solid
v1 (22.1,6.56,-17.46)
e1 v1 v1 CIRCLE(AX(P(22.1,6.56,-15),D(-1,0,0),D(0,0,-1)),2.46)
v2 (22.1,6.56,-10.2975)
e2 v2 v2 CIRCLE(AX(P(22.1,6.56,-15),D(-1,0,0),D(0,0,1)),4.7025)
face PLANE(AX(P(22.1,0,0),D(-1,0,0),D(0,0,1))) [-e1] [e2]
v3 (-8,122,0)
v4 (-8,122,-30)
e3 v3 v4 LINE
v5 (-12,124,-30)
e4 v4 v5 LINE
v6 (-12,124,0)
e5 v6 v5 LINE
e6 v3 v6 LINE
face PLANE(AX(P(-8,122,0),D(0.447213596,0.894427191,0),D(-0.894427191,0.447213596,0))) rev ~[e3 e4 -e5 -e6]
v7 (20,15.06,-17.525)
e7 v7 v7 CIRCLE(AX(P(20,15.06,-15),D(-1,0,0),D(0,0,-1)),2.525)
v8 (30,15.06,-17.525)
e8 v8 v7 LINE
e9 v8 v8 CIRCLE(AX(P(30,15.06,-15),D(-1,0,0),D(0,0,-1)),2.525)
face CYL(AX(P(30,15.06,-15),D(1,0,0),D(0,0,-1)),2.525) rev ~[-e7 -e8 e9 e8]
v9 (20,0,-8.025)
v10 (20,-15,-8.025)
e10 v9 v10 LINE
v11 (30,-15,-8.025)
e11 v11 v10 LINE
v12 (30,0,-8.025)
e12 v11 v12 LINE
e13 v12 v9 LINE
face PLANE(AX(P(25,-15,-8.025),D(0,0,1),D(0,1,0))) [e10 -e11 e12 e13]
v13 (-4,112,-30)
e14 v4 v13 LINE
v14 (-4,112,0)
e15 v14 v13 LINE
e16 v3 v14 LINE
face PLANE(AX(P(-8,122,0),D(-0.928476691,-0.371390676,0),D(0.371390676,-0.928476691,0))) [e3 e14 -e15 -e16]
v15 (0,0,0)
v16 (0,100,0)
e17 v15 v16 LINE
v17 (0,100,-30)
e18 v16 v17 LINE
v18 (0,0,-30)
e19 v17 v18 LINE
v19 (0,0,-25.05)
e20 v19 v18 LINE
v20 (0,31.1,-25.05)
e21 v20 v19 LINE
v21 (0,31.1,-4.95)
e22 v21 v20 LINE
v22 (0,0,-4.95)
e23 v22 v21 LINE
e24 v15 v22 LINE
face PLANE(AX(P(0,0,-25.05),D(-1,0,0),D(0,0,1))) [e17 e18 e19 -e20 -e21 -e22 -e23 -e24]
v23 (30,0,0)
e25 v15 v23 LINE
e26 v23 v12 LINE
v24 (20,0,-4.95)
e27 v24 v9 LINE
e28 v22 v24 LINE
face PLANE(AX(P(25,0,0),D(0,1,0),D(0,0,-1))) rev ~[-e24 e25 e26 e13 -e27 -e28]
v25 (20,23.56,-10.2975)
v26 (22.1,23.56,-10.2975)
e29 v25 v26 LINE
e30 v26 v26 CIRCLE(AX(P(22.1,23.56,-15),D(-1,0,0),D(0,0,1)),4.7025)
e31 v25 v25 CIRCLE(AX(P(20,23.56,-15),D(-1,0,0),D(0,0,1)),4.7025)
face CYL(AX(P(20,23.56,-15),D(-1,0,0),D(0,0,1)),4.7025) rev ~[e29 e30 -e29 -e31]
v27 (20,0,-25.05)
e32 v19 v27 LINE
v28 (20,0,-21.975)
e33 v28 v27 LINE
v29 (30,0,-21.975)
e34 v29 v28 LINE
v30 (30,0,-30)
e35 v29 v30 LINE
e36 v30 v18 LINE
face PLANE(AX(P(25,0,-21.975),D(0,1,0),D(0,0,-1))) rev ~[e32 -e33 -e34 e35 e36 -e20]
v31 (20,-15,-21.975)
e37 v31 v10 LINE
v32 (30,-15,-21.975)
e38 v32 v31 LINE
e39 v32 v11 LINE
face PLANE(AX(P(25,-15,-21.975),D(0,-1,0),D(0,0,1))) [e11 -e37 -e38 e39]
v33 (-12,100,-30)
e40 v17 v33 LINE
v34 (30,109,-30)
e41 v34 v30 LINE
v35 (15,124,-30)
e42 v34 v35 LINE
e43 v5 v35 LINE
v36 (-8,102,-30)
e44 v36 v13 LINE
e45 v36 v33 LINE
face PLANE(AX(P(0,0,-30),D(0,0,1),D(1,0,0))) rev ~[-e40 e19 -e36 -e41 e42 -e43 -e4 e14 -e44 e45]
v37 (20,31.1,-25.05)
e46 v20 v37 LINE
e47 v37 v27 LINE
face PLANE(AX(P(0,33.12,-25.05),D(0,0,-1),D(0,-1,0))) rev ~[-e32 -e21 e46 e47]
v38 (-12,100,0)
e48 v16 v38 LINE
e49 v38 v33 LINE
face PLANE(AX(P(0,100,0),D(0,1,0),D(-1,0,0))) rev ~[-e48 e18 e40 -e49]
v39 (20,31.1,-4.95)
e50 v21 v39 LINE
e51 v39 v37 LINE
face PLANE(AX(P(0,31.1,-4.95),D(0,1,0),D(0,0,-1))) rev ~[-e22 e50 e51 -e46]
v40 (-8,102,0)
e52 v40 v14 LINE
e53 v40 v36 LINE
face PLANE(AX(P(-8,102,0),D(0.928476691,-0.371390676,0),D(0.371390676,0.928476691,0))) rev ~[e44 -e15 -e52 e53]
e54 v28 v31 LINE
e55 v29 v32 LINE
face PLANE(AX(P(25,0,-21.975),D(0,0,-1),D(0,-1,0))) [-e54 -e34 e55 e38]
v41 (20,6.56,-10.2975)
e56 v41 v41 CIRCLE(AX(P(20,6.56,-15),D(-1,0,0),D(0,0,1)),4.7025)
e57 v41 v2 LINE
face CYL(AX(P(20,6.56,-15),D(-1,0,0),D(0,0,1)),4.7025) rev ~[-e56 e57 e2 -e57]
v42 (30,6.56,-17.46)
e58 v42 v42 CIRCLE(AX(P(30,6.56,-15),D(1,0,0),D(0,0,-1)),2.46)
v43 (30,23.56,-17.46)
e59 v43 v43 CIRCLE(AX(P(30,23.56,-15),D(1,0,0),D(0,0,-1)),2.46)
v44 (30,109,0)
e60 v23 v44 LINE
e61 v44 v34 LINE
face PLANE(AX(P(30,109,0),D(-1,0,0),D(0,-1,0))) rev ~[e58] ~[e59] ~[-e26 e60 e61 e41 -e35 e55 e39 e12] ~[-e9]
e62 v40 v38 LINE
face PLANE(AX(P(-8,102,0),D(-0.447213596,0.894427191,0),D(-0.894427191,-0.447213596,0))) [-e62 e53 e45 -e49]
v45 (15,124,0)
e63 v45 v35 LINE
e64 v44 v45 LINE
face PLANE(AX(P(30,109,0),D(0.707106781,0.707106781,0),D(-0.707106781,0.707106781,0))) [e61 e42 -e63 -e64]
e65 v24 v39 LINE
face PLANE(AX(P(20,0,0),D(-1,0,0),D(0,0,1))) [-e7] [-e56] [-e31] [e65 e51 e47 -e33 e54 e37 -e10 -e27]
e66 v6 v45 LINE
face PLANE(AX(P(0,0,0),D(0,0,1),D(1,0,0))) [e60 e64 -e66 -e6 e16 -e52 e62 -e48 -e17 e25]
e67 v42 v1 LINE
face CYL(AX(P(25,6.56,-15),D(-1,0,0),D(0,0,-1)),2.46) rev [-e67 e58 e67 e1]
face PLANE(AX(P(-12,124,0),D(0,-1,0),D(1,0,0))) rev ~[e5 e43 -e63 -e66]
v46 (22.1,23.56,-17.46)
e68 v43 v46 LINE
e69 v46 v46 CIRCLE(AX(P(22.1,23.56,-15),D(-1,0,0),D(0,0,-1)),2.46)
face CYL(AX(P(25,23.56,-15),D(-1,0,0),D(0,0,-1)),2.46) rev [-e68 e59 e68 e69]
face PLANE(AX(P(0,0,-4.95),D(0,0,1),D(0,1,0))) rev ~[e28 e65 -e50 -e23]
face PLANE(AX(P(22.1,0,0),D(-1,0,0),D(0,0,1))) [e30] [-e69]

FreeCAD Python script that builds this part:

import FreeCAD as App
import Part
import Sketcher

V = App.Vector
Q = App.Units.Quantity


def add_polygon(sketch, points):
    """Adds a closed chain of lines whose ends are joined by coincident constraints."""
    first, n = sketch.GeometryCount, len(points)
    for a, b in zip(points, points[1:] + points[:1]):
        sketch.addGeometry(Part.LineSegment(App.Vector(*a, 0), App.Vector(*b, 0)), False)
    for i in range(n):
        sketch.addConstraint(Sketcher.Constraint("Coincident", first + i, 2, first + (i + 1) % n, 1))

doc = App.newDocument("Part")
body = doc.addObject("PartDesign::Body", "Body")

# Sketch on XY plane
sketch1 = body.newObject("Sketcher::SketchObject", "Sketch")
sketch1.AttachmentSupport = (doc.getObject("XY_Plane"), [""])
sketch1.MapMode = "FlatFace"
add_polygon(sketch1, [(0, 40), (0, 0), (25, 0), (25, 40)])  # lines 0-3
sketch1.addConstraint([
    Sketcher.Constraint("Vertical", 0),
    Sketcher.Constraint("Horizontal", 1),
    Sketcher.Constraint("Vertical", 2),
    Sketcher.Constraint("Horizontal", 3),
    Sketcher.Constraint("Coincident", 0, 2, -1, 1),
    Sketcher.Constraint("DistanceX", 1, 1, 1, 2, Q("25 mm")),
    Sketcher.Constraint("DistanceY", 0, 2, 0, 1, Q("40 mm")),
])
pad1 = body.newObject("PartDesign::Pad", "Pad")
pad1.Profile = sketch1
pad1.Length = 30
pad1.Reversed = True

# Sketch on YZ plane
sketch2 = body.newObject("Sketcher::SketchObject", "Sketch001")
sketch2.AttachmentSupport = (doc.getObject("YZ_Plane"), [""])
sketch2.MapMode = "FlatFace"
sketch2.AttachmentOffset = App.Placement(V(0, 0, 25), App.Rotation())
sketch2.addGeometry(Part.Circle(V(6.6, -15, 0), V(0, 0, 1), 2.5), False)
sketch2.addConstraint([
    Sketcher.Constraint("Diameter", 0, Q("4.92 mm")),
    Sketcher.Constraint("DistanceY", 0, 3, -1, 1, Q("15 mm")),
    Sketcher.Constraint("DistanceX", -1, 1, 0, 3, Q("6.56 mm")),
])
pocket1 = body.newObject("PartDesign::Pocket", "Pocket")
pocket1.Profile = sketch2
pocket1.Length = 30

# Sketch on YZ plane
sketch3 = body.newObject("Sketcher::SketchObject", "Sketch002")
sketch3.AttachmentSupport = (doc.getObject("YZ_Plane"), [""])
sketch3.MapMode = "FlatFace"
add_polygon(sketch3, [(0, -25), (0, -5), (33, -5), (33, -25)])  # lines 0-3
sketch3.addConstraint([
    Sketcher.Constraint("Vertical", 0),
    Sketcher.Constraint("Horizontal", 1),
    Sketcher.Constraint("Vertical", 2),
    Sketcher.Constraint("Horizontal", 3),
    Sketcher.Constraint("PointOnObject", 0, 2, -2),
    Sketcher.Constraint("DistanceY", 0, 1, 0, 2, Q("20.1 mm")),
    Sketcher.Constraint("DistanceX", 1, 1, 1, 2, Q("33.12 mm")),
    Sketcher.Constraint("DistanceY", 0, 2, -1, 1, Q("4.95 mm")),
])
pocket2 = body.newObject("PartDesign::Pocket", "Pocket001")
pocket2.Profile = sketch3
pocket2.Length = 20
pocket2.Reversed = True

# Sketch on XZ plane
sketch4 = body.newObject("Sketcher::SketchObject", "Sketch003")
sketch4.AttachmentSupport = (doc.getObject("XZ_Plane"), [""])
sketch4.MapMode = "FlatFace"
add_polygon(sketch4, [(25, -8), (20, -8), (20, -22), (25, -22)])  # lines 0-3
sketch4.addConstraint([
    Sketcher.Constraint("Horizontal", 0),
    Sketcher.Constraint("Vertical", 1),
    Sketcher.Constraint("Horizontal", 2),
    Sketcher.Constraint("Vertical", 3),
    Sketcher.Constraint("DistanceY", 1, 2, 1, 1, Q("13.95 mm")),
    Sketcher.Constraint("DistanceX", 0, 2, 0, 1, Q("5 mm")),
    Sketcher.Constraint("DistanceX", -1, 1, 0, 2, Q("20 mm")),
    Sketcher.Constraint("DistanceY", 0, 2, -1, 1, Q("8.025 mm")),
])
pad2 = body.newObject("PartDesign::Pad", "Pad001")
pad2.Profile = sketch4
pad2.Length = 15

# Sketch on YZ plane
sketch5 = body.newObject("Sketcher::SketchObject", "Sketch004")
sketch5.AttachmentSupport = (doc.getObject("YZ_Plane"), [""])
sketch5.MapMode = "FlatFace"
sketch5.AttachmentOffset = App.Placement(V(0, 0, 20), App.Rotation())
sketch5.addGeometry([
    Part.Circle(V(6.6, -15, 0), V(0, 0, 1), 4.7),
    Part.Circle(V(6.6, -15, 0), V(0, 0, 1), 2.5),
], False)
sketch5.addConstraint([
    Sketcher.Constraint("Coincident", 1, 3, 0, 3),
    Sketcher.Constraint("Diameter", 0, Q("9.405 mm")),
    Sketcher.Constraint("Diameter", 1, Q("4.92 mm")),
    Sketcher.Constraint("DistanceY", 0, 3, -1, 1, Q("15 mm")),
    Sketcher.Constraint("DistanceX", -1, 1, 0, 3, Q("6.56 mm")),
])
pocket3 = body.newObject("PartDesign::Pocket", "Pocket002")
pocket3.Profile = sketch5
pocket3.Length = 2.1
pocket3.Reversed = True

# Sketch on YZ plane
sketch6 = body.newObject("Sketcher::SketchObject", "Sketch005")
sketch6.AttachmentSupport = (doc.getObject("YZ_Plane"), [""])
sketch6.MapMode = "FlatFace"
sketch6.AttachmentOffset = App.Placement(V(0, 0, 25), App.Rotation())
sketch6.addGeometry(Part.Circle(V(23.6, -15, 0), V(0, 0, 1), 2.5), False)
sketch6.addConstraint([
    Sketcher.Constraint("Diameter", 0, Q("4.92 mm")),
    Sketcher.Constraint("DistanceY", 0, 3, -1, 1, Q("15 mm")),
    Sketcher.Constraint("DistanceX", -1, 1, 0, 3, Q("23.56 mm")),
])
pocket4 = body.newObject("PartDesign::Pocket", "Pocket003")
pocket4.Profile = sketch6
pocket4.Length = 10

# Sketch on YZ plane
sketch7 = body.newObject("Sketcher::SketchObject", "Sketch006")
sketch7.AttachmentSupport = (doc.getObject("YZ_Plane"), [""])
sketch7.MapMode = "FlatFace"
sketch7.AttachmentOffset = App.Placement(V(0, 0, 20), App.Rotation())
sketch7.addGeometry([
    Part.Circle(V(23.6, -15, 0), V(0, 0, 1), 4.7),
    Part.Circle(V(23.6, -15, 0), V(0, 0, 1), 2.5),
], False)
sketch7.addConstraint([
    Sketcher.Constraint("Coincident", 1, 3, 0, 3),
    Sketcher.Constraint("Diameter", 0, Q("9.405 mm")),
    Sketcher.Constraint("Diameter", 1, Q("4.92 mm")),
    Sketcher.Constraint("DistanceY", 0, 3, -1, 1, Q("15 mm")),
    Sketcher.Constraint("DistanceX", -1, 1, 0, 3, Q("23.56 mm")),
])
pocket5 = body.newObject("PartDesign::Pocket", "Pocket004")
pocket5.Profile = sketch7
pocket5.Length = 2.1
pocket5.Reversed = True

# Sketch on YZ plane
sketch8 = body.newObject("Sketcher::SketchObject", "Sketch007")
sketch8.AttachmentSupport = (doc.getObject("YZ_Plane"), [""])
sketch8.MapMode = "FlatFace"
sketch8.AttachmentOffset = App.Placement(V(0, 0, 25), App.Rotation())
add_polygon(sketch8, [(0, -30), (40, -30), (40, 0), (0, 0), (0, -8), (-15, -8), (-15, -22), (0, -22)])  # lines 0-7
sketch8.addGeometry(Part.Circle(V(6.6, -15, 0), V(0, 0, 1), 2.5), False)  # 8
sketch8.addGeometry(Part.Circle(V(23.6, -15, 0), V(0, 0, 1), 2.5), False)  # 9
sketch8.addConstraint([
    Sketcher.Constraint("Horizontal", 0),
    Sketcher.Constraint("Vertical", 1),
    Sketcher.Constraint("Horizontal", 2),
    Sketcher.Constraint("Vertical", 3),
    Sketcher.Constraint("Horizontal", 4),
    Sketcher.Constraint("Vertical", 5),
    Sketcher.Constraint("Horizontal", 6),
    Sketcher.Constraint("Vertical", 7),
    Sketcher.Constraint("Coincident", 2, 2, -1, 1),
    Sketcher.Constraint("Equal", 8, 9),
    Sketcher.Constraint("PointOnObject", 6, 2, -2),
    Sketcher.Constraint("Horizontal", 8, 3, 9, 3),
    Sketcher.Constraint("Equal", 3, 7),
    Sketcher.Constraint("Diameter", 8, Q("4.92 mm")),
    Sketcher.Constraint("DistanceX", 0, 1, 0, 2, Q("40 mm")),
    Sketcher.Constraint("DistanceX", 4, 2, 4, 1, Q("15 mm")),
    Sketcher.Constraint("DistanceY", 1, 1, 1, 2, Q("30 mm")),
    Sketcher.Constraint("DistanceY", 8, 3, -1, 1, Q("15 mm")),
    Sketcher.Constraint("DistanceX", 8, 3, 9, 3, Q("17 mm")),
    Sketcher.Constraint("DistanceY", 5, 2, 5, 1, Q("13.95 mm")),
    Sketcher.Constraint("DistanceX", -1, 1, 8, 3, Q("6.56 mm")),
])
pad3 = body.newObject("PartDesign::Pad", "Pad002")
pad3.Profile = sketch8
pad3.Length = 5

# Sketch on XZ plane
sketch9 = body.newObject("Sketcher::SketchObject", "Sketch008")
sketch9.AttachmentSupport = (doc.getObject("XZ_Plane"), [""])
sketch9.MapMode = "FlatFace"
sketch9.AttachmentOffset = App.Placement(V(0, 0, -40), App.Rotation())
add_polygon(sketch9, [(30, -30), (0, -30), (0, 0), (30, 0)])  # lines 0-3
sketch9.addConstraint([
    Sketcher.Constraint("Horizontal", 0),
    Sketcher.Constraint("Vertical", 1),
    Sketcher.Constraint("Horizontal", 2),
    Sketcher.Constraint("Vertical", 3),
    Sketcher.Constraint("Coincident", 1, 2, -1, 1),
    Sketcher.Constraint("Equal", 2, 1),
    Sketcher.Constraint("DistanceX", 0, 2, 0, 1, Q("30 mm")),
])
pad4 = body.newObject("PartDesign::Pad", "Pad003")
pad4.Profile = sketch9
pad4.Length = 30
pad4.Reversed = True

# Sketch on YZ plane
sketch10 = body.newObject("Sketcher::SketchObject", "Sketch009")
sketch10.AttachmentSupport = (doc.getObject("YZ_Plane"), [""])
sketch10.MapMode = "FlatFace"
sketch10.AttachmentOffset = App.Placement(V(0, 0, 30), App.Rotation())
sketch10.addGeometry(Part.Circle(V(15.1, -15, 0), V(0, 0, 1), 2.5), False)
sketch10.addConstraint([
    Sketcher.Constraint("Diameter", 0, Q("5.05 mm")),
    Sketcher.Constraint("DistanceY", 0, 3, -1, 1, Q("15 mm")),
    Sketcher.Constraint("DistanceX", -1, 1, 0, 3, Q("15.06 mm")),
])
pocket6 = body.newObject("PartDesign::Pocket", "Pocket005")
pocket6.Profile = sketch10
pocket6.Length = 30

# Sketch on XY plane
sketch11 = body.newObject("Sketcher::SketchObject", "Sketch010")
sketch11.AttachmentSupport = (doc.getObject("XY_Plane"), [""])
sketch11.MapMode = "FlatFace"
add_polygon(sketch11, [(0, 70), (30, 70), (30, 109), (15, 124), (-12, 124), (-8, 122), (-4, 112), (-8, 102), (-12, 100), (0, 100)])  # lines 0-9
sketch11.addConstraint([
    Sketcher.Constraint("Horizontal", 0),
    Sketcher.Constraint("Vertical", 1),
    Sketcher.Constraint("Horizontal", 3),
    Sketcher.Constraint("Horizontal", 8),
    Sketcher.Constraint("Vertical", 9),
    Sketcher.Constraint("PointOnObject", 8, 2, -2),
    Sketcher.Constraint("Vertical", 4, 2, 6, 2),
    Sketcher.Constraint("Vertical", 3, 2, 7, 2),
    Sketcher.Constraint("Equal", 0, 9),
    Sketcher.Constraint("Equal", 5, 6),
    Sketcher.Constraint("Equal", 4, 7),
    Sketcher.Constraint("DistanceX", 8, 1, 8, 2, Q("12 mm")),
    Sketcher.Constraint("DistanceY", 5, 2, 3, 2, Q("12 mm")),
    Sketcher.Constraint("DistanceX", 0, 1, 0, 2, Q("30 mm")),
    Sketcher.Constraint("DistanceX", 3, 2, 3, 1, Q("27 mm")),
    Sketcher.Constraint("DistanceY", 1, 1, 1, 2, Q("39 mm")),
    Sketcher.Constraint("DistanceY", -1, 1, 0, 2, Q("70 mm")),
    Sketcher.Constraint("DistanceX", 4, 2, -1, 1, Q("8 mm")),
    Sketcher.Constraint("DistanceY", -1, 1, 4, 2, Q("122 mm")),
    Sketcher.Constraint("DistanceX", 5, 2, -1, 1, Q("4 mm")),
])
pad5 = body.newObject("PartDesign::Pad", "Pad004")
pad5.Profile = sketch11
pad5.Length = 30
pad5.Reversed = True

# Sketch on YZ plane
sketch12 = body.newObject("Sketcher::SketchObject", "Sketch011")
sketch12.AttachmentSupport = (doc.getObject("YZ_Plane"), [""])
sketch12.MapMode = "FlatFace"
add_polygon(sketch12, [(33.1, -5), (33.1, -25.1), (31.1, -25.1), (31.1, -5)])  # lines 0-3
sketch12.addConstraint([
    Sketcher.Constraint("Vertical", 0),
    Sketcher.Constraint("Horizontal", 1),
    Sketcher.Constraint("Vertical", 2),
    Sketcher.Constraint("Horizontal", 3),
    Sketcher.Constraint("DistanceX", 1, 2, 1, 1, Q("2.02 mm")),
    Sketcher.Constraint("DistanceY", 0, 2, 0, 1, Q("20.1 mm")),
    Sketcher.Constraint("DistanceX", -1, 1, 1, 2, Q("31.1 mm")),
    Sketcher.Constraint("DistanceY", 0, 2, -1, 1, Q("25.05 mm")),
])
pad6 = body.newObject("PartDesign::Pad", "Pad005")
pad6.Profile = sketch12
pad6.Length = 20

doc.recompute()
